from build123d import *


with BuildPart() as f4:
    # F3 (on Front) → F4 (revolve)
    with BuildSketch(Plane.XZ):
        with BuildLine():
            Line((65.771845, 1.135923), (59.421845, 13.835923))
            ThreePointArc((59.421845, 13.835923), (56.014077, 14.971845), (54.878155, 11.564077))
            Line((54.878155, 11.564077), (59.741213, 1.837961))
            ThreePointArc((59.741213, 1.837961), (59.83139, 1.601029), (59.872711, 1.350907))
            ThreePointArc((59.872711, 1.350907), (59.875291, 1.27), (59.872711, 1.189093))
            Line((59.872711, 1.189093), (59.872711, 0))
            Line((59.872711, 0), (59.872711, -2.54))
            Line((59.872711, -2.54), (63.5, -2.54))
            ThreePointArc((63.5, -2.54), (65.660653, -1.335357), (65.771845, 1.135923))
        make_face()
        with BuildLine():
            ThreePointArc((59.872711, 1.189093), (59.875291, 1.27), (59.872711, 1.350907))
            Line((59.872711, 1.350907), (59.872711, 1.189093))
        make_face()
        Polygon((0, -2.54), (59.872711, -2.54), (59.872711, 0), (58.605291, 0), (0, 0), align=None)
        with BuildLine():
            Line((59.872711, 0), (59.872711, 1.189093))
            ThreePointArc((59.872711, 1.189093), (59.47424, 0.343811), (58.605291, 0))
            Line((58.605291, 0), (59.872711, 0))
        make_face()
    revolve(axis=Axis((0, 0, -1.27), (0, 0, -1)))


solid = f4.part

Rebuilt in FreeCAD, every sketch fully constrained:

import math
import FreeCAD as App
import Part
import Sketcher
Q = App.Units.Quantity

doc = App.newDocument("Part")
body = doc.addObject("PartDesign::Body", "Body")

# Sketch on XZ plane
sketch1 = body.newObject("Sketcher::SketchObject", "Sketch")
sketch1.AttachmentSupport = (doc.getObject("XZ_Plane"), [""])
sketch1.MapMode = "FlatFace"
sketch1.addGeometry(Part.LineSegment(App.Vector(65.77, 1.14, 0), App.Vector(59.42, 13.84, 0)), False)
sketch1.addGeometry(Part.ArcOfCircle(Part.Circle(App.Vector(57.15, 12.7, 0), App.Vector(0, 0, 1), 2.54), math.radians(27), math.radians(207)), False)
sketch1.addGeometry(Part.LineSegment(App.Vector(54.88, 11.56, 0), App.Vector(59.74, 1.84, 0)), False)
sketch1.addGeometry(Part.ArcOfCircle(Part.Circle(App.Vector(58.61, 1.27, 0), App.Vector(0, 0, 1), 1.27), math.radians(4), math.radians(27)), False)
sketch1.addGeometry(Part.LineSegment(App.Vector(59.87, 1.35, 0), App.Vector(59.87, 1.19, 0)), False)
sketch1.addGeometry(Part.ArcOfCircle(Part.Circle(App.Vector(58.61, 1.27, 0), App.Vector(0, 0, 1), 1.27), math.radians(-90), math.radians(-4)), False)
sketch1.addGeometry(Part.LineSegment(App.Vector(58.61, 0, 0), App.Vector(0, 0, 0)), False)
sketch1.addGeometry(Part.LineSegment(App.Vector(0, 0, 0), App.Vector(0, -2.54, 0)), False)
sketch1.addGeometry(Part.LineSegment(App.Vector(0, -2.54, 0), App.Vector(63.5, -2.54, 0)), False)
sketch1.addGeometry(Part.ArcOfCircle(Part.Circle(App.Vector(63.5, 0, 0), App.Vector(0, 0, 1), 2.54), math.radians(-90), math.radians(27)), False)
sketch1.addConstraint(Sketcher.Constraint("Tangent", 0, 2, 1, 1))
sketch1.addConstraint(Sketcher.Constraint("Tangent", 1, 2, 2, 1))
sketch1.addConstraint(Sketcher.Constraint("Tangent", 2, 2, 3, 2))
sketch1.addConstraint(Sketcher.Constraint("Coincident", 3, 1, 4, 1))
sketch1.addConstraint(Sketcher.Constraint("Coincident", 4, 2, 5, 2))
sketch1.addConstraint(Sketcher.Constraint("Tangent", 5, 1, 6, 1))
sketch1.addConstraint(Sketcher.Constraint("Coincident", 6, 2, 7, 1))
sketch1.addConstraint(Sketcher.Constraint("Coincident", 7, 2, 8, 1))
sketch1.addConstraint(Sketcher.Constraint("Tangent", 8, 2, 9, 1))
sketch1.addConstraint(Sketcher.Constraint("Tangent", 9, 2, 0, 1))
sketch1.addConstraint(Sketcher.Constraint("Vertical", 4))
sketch1.addConstraint(Sketcher.Constraint("Horizontal", 6))
sketch1.addConstraint(Sketcher.Constraint("Vertical", 7))
sketch1.addConstraint(Sketcher.Constraint("Horizontal", 8))
sketch1.addConstraint(Sketcher.Constraint("Coincident", 6, 2, -1, 1))
sketch1.addConstraint(Sketcher.Constraint("Coincident", 5, 3, 3, 3))
sketch1.addConstraint(Sketcher.Constraint("Equal", 3, 5))
sketch1.addConstraint(Sketcher.Constraint("Equal", 1, 9))
sketch1.addConstraint(Sketcher.Constraint("PointOnObject", 9, 3, -1))
sketch1.addConstraint(Sketcher.Constraint("Parallel", 0, 2))
sketch1.addConstraint(Sketcher.Constraint("Radius", 1, Q("0.1 in")))
sketch1.addConstraint(Sketcher.Constraint("Radius", 3, Q("0.05 in")))
sketch1.addConstraint(Sketcher.Constraint("DistanceX", 8, 1, 8, 2, Q("2.5 in")))
sketch1.addConstraint(Sketcher.Constraint("DistanceY", -1, 1, 1, 3, Q("0.5 in")))
sketch1.addConstraint(Sketcher.Constraint("DistanceX", -1, 1, 1, 3, Q("2.25 in")))
sketch1.addConstraint(Sketcher.Constraint("DistanceX", 2, 2, 4, 2, 0.131498))
revolution = body.newObject("PartDesign::Revolution", "Revolution")
revolution.Profile = sketch1
revolution.ReferenceAxis = (sketch1, ["V_Axis"])
revolution.Angle = 360

doc.recompute()
